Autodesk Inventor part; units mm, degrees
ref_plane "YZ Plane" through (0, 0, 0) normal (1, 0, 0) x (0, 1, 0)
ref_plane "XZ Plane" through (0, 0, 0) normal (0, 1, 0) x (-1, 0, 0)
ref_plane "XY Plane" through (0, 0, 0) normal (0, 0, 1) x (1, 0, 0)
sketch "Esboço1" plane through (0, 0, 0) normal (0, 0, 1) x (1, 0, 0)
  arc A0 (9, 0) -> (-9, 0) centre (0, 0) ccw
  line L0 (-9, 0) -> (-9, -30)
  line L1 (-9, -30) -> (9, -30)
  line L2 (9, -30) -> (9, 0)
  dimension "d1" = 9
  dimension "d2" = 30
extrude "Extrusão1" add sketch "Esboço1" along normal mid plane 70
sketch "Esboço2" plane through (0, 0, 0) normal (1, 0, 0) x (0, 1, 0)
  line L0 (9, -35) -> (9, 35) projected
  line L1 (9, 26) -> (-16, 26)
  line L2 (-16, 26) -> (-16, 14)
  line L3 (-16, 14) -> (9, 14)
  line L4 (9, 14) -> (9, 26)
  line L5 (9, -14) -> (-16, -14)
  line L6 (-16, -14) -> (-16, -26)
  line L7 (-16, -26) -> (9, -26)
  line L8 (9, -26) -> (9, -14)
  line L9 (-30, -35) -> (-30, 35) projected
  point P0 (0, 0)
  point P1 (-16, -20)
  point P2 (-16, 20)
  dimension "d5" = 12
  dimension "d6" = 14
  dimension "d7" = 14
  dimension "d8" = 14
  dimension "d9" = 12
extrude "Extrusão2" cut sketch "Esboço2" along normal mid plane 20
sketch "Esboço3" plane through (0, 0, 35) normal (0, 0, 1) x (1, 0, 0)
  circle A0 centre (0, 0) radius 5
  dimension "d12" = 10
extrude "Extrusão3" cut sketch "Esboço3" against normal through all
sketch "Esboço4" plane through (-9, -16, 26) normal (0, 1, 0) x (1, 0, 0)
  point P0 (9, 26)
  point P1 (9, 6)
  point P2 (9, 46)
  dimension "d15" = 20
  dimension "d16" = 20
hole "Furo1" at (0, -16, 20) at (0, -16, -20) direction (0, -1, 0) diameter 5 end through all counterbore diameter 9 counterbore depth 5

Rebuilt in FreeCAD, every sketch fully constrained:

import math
import FreeCAD as App
import Part
import Sketcher
Q = App.Units.Quantity


def add_polygon(sketch, points):
    """Adds a closed chain of lines whose ends are joined by coincident constraints."""
    first, n = sketch.GeometryCount, len(points)
    for a, b in zip(points, points[1:] + points[:1]):
        sketch.addGeometry(Part.LineSegment(App.Vector(*a, 0), App.Vector(*b, 0)), False)
    for i in range(n):
        sketch.addConstraint(Sketcher.Constraint("Coincident", first + i, 2, first + (i + 1) % n, 1))

doc = App.newDocument("Part")
body = doc.addObject("PartDesign::Body", "Body")

# Sketch on XY plane
sketch1 = body.newObject("Sketcher::SketchObject", "Sketch")
sketch1.AttachmentSupport = (doc.getObject("XY_Plane"), [""])
sketch1.MapMode = "FlatFace"
sketch1.addGeometry([
    Part.LineSegment(App.Vector(9, -30, 0), App.Vector(9, 0, 0)),
    Part.ArcOfCircle(Part.Circle(App.Vector(0, 0, 0), App.Vector(0, 0, 1), 9), math.radians(0), math.radians(180)),
    Part.LineSegment(App.Vector(-9, 0, 0), App.Vector(-9, -30, 0)),
    Part.LineSegment(App.Vector(-9, -30, 0), App.Vector(9, -30, 0)),
], False)
sketch1.addConstraint([
    Sketcher.Constraint("Tangent", 0, 2, 1, 1),
    Sketcher.Constraint("Tangent", 1, 2, 2, 1),
    Sketcher.Constraint("Coincident", 2, 2, 3, 1),
    Sketcher.Constraint("Coincident", 3, 2, 0, 1),
    Sketcher.Constraint("Vertical", 0),
    Sketcher.Constraint("Vertical", 2),
    Sketcher.Constraint("Horizontal", 3),
    Sketcher.Constraint("Coincident", 1, 3, -1, 1),
    Sketcher.Constraint("Radius", 1, Q("9 mm")),
    Sketcher.Constraint("DistanceY", 0, 1, 0, 2, Q("30 mm")),
])
pad1 = body.newObject("PartDesign::Pad", "Pad")
pad1.Profile = sketch1
pad1.Length = 70
pad1.Midplane = True

# Sketch on YZ plane
sketch2 = body.newObject("Sketcher::SketchObject", "Sketch001")
sketch2.AttachmentSupport = (doc.getObject("YZ_Plane"), [""])
sketch2.MapMode = "FlatFace"
add_polygon(sketch2, [(-16, -26), (9, -26), (9, -14), (-16, -14)])  # lines 0-3
add_polygon(sketch2, [(-16, 14), (9, 14), (9, 26), (-16, 26)])  # lines 4-7
sketch2.addConstraint([
    Sketcher.Constraint("Horizontal", 0),
    Sketcher.Constraint("Vertical", 1),
    Sketcher.Constraint("Horizontal", 2),
    Sketcher.Constraint("Vertical", 3),
    Sketcher.Constraint("Horizontal", 4),
    Sketcher.Constraint("Vertical", 5),
    Sketcher.Constraint("Horizontal", 6),
    Sketcher.Constraint("Vertical", 7),
    Sketcher.Constraint("Symmetric", 1, 2, 4, 2, -1),
    Sketcher.Constraint("Symmetric", 3, 2, 6, 2, -1),
    Sketcher.Constraint("DistanceY", 1, 1, 1, 2, Q("12 mm")),
    Sketcher.Constraint("DistanceY", 1, 2, -1, 1, Q("14 mm")),
    Sketcher.Constraint("DistanceX", 0, 1, 0, 2, Q("25 mm")),
    Sketcher.Constraint("DistanceX", -1, 1, 0, 2, Q("9 mm")),
])
pocket1 = body.newObject("PartDesign::Pocket", "Pocket")
pocket1.Profile = sketch2
pocket1.Length = 20
pocket1.Midplane = True

# Sketch on XY plane
sketch3 = body.newObject("Sketcher::SketchObject", "Sketch002")
sketch3.AttachmentSupport = (doc.getObject("XY_Plane"), [""])
sketch3.MapMode = "FlatFace"
sketch3.AttachmentOffset = App.Placement(App.Vector(0, 0, 35), App.Rotation())
sketch3.addGeometry(Part.Circle(App.Vector(0, 0, 0), App.Vector(0, 0, 1), 5), False)
sketch3.addConstraint([
    Sketcher.Constraint("Coincident", 0, 3, -1, 1),
    Sketcher.Constraint("Diameter", 0, Q("10 mm")),
])
pocket2 = body.newObject("PartDesign::Pocket", "Pocket001")
pocket2.Profile = sketch3
pocket2.Type = "ThroughAll"

# Sketch on XZ plane
sketch4 = body.newObject("Sketcher::SketchObject", "Sketch003")
sketch4.AttachmentSupport = (doc.getObject("XZ_Plane"), [""])
sketch4.MapMode = "FlatFace"
sketch4.AttachmentOffset = App.Placement(App.Vector(0, 0, 16), App.Rotation())
sketch4.addGeometry([
    Part.Circle(App.Vector(0, 20, 0), App.Vector(0, 0, 1), 2.5),
    Part.Circle(App.Vector(0, -20, 0), App.Vector(0, 0, 1), 2.5),
], False)
sketch4.addConstraint([
    Sketcher.Constraint("Equal", 0, 1),
    Sketcher.Constraint("Symmetric", 0, 3, 1, 3, -1, 1),
    Sketcher.Constraint("PointOnObject", 0, 3, -2),
    Sketcher.Constraint("Diameter", 0, Q("5 mm")),
    Sketcher.Constraint("DistanceY", -1, 1, 0, 3, Q("20 mm")),
])
doc.recompute()
hole = body.newObject("PartDesign::Hole", "Hole")
hole.Profile = sketch4
hole.ThreadType = "None"
hole.Diameter = 5
hole.DepthType = "ThroughAll"
hole.HoleCutType = "Counterbore"
hole.HoleCutDiameter = 9
hole.HoleCutDepth = 5
hole.Reversed = True

doc.recompute()
